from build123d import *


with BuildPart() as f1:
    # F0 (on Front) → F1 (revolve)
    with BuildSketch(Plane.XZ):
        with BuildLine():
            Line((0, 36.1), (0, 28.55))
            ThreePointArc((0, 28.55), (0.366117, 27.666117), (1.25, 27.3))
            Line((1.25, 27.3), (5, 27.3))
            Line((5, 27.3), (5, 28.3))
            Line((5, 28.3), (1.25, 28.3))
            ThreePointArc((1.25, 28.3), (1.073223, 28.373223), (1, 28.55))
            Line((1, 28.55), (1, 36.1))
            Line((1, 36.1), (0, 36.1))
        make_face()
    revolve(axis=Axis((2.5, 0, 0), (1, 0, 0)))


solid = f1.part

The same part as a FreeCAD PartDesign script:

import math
import FreeCAD as App
import Part
import Sketcher
Q = App.Units.Quantity

doc = App.newDocument("Part")
body = doc.addObject("PartDesign::Body", "Body")

sketch1 = doc.addObject("Sketcher::SketchObject", "Sketch")
body.addObject(sketch1)
sketch1.AttachmentSupport = (doc.XZ_Plane, [""])
sketch1.MapMode = "FlatFace"
sketch1.addGeometry([
    Part.LineSegment(App.Vector(0, 36.1, 0), App.Vector(0, 28.55, 0)),
    Part.ArcOfCircle(Part.Circle(App.Vector(1.25, 28.55, 0), App.Vector(0, 0, 1), 1.25), math.radians(-180), math.radians(-90)),
    Part.LineSegment(App.Vector(1.25, 27.3, 0), App.Vector(5, 27.3, 0)),
    Part.LineSegment(App.Vector(5, 27.3, 0), App.Vector(5, 28.3, 0)),
    Part.LineSegment(App.Vector(5, 28.3, 0), App.Vector(1.25, 28.3, 0)),
    Part.ArcOfCircle(Part.Circle(App.Vector(1.25, 28.55, 0), App.Vector(0, 0, 1), 0.25), math.radians(180), math.radians(270)),
    Part.LineSegment(App.Vector(1, 28.55, 0), App.Vector(1, 36.1, 0)),
    Part.LineSegment(App.Vector(1, 36.1, 0), App.Vector(0, 36.1, 0)),
], False)
sketch1.addConstraint([
    Sketcher.Constraint("Tangent", 0, 2, 1, 1),
    Sketcher.Constraint("Tangent", 1, 2, 2, 1),
    Sketcher.Constraint("Coincident", 2, 2, 3, 1),
    Sketcher.Constraint("Coincident", 3, 2, 4, 1),
    Sketcher.Constraint("Coincident", 4, 2, 5, 2),
    Sketcher.Constraint("Coincident", 5, 1, 6, 1),
    Sketcher.Constraint("Coincident", 6, 2, 7, 1),
    Sketcher.Constraint("Coincident", 7, 2, 0, 1),
    Sketcher.Constraint("Vertical", 0),
    Sketcher.Constraint("Horizontal", 2),
    Sketcher.Constraint("Vertical", 3),
    Sketcher.Constraint("Horizontal", 4),
    Sketcher.Constraint("Vertical", 6),
    Sketcher.Constraint("Horizontal", 7),
    Sketcher.Constraint("Coincident", 5, 3, 1, 3),
    Sketcher.Constraint("PointOnObject", 0, 2, -2),
    Sketcher.Constraint("Horizontal", 0, 2, 5, 1),
    Sketcher.Constraint("Vertical", 1, 2, 4, 2),
    Sketcher.Constraint("DistanceX", 7, 2, 7, 1, Q("1 mm")),
    Sketcher.Constraint("Radius", 1, Q("1.250002 mm")),
    Sketcher.Constraint("DistanceX", -1, 1, 2, 2, Q("5 mm")),
    Sketcher.Constraint("DistanceY", 0, 2, 0, 1, Q("7.55 mm")),
    Sketcher.Constraint("DistanceY", -1, 1, 1, 2, Q("27.3 mm")),
])
revolution = doc.addObject("PartDesign::Revolution", "Revolution")
body.addObject(revolution)
revolution.Profile = sketch1
revolution.ReferenceAxis = (sketch1, ["H_Axis"])
revolution.Angle = 360

doc.recompute()
